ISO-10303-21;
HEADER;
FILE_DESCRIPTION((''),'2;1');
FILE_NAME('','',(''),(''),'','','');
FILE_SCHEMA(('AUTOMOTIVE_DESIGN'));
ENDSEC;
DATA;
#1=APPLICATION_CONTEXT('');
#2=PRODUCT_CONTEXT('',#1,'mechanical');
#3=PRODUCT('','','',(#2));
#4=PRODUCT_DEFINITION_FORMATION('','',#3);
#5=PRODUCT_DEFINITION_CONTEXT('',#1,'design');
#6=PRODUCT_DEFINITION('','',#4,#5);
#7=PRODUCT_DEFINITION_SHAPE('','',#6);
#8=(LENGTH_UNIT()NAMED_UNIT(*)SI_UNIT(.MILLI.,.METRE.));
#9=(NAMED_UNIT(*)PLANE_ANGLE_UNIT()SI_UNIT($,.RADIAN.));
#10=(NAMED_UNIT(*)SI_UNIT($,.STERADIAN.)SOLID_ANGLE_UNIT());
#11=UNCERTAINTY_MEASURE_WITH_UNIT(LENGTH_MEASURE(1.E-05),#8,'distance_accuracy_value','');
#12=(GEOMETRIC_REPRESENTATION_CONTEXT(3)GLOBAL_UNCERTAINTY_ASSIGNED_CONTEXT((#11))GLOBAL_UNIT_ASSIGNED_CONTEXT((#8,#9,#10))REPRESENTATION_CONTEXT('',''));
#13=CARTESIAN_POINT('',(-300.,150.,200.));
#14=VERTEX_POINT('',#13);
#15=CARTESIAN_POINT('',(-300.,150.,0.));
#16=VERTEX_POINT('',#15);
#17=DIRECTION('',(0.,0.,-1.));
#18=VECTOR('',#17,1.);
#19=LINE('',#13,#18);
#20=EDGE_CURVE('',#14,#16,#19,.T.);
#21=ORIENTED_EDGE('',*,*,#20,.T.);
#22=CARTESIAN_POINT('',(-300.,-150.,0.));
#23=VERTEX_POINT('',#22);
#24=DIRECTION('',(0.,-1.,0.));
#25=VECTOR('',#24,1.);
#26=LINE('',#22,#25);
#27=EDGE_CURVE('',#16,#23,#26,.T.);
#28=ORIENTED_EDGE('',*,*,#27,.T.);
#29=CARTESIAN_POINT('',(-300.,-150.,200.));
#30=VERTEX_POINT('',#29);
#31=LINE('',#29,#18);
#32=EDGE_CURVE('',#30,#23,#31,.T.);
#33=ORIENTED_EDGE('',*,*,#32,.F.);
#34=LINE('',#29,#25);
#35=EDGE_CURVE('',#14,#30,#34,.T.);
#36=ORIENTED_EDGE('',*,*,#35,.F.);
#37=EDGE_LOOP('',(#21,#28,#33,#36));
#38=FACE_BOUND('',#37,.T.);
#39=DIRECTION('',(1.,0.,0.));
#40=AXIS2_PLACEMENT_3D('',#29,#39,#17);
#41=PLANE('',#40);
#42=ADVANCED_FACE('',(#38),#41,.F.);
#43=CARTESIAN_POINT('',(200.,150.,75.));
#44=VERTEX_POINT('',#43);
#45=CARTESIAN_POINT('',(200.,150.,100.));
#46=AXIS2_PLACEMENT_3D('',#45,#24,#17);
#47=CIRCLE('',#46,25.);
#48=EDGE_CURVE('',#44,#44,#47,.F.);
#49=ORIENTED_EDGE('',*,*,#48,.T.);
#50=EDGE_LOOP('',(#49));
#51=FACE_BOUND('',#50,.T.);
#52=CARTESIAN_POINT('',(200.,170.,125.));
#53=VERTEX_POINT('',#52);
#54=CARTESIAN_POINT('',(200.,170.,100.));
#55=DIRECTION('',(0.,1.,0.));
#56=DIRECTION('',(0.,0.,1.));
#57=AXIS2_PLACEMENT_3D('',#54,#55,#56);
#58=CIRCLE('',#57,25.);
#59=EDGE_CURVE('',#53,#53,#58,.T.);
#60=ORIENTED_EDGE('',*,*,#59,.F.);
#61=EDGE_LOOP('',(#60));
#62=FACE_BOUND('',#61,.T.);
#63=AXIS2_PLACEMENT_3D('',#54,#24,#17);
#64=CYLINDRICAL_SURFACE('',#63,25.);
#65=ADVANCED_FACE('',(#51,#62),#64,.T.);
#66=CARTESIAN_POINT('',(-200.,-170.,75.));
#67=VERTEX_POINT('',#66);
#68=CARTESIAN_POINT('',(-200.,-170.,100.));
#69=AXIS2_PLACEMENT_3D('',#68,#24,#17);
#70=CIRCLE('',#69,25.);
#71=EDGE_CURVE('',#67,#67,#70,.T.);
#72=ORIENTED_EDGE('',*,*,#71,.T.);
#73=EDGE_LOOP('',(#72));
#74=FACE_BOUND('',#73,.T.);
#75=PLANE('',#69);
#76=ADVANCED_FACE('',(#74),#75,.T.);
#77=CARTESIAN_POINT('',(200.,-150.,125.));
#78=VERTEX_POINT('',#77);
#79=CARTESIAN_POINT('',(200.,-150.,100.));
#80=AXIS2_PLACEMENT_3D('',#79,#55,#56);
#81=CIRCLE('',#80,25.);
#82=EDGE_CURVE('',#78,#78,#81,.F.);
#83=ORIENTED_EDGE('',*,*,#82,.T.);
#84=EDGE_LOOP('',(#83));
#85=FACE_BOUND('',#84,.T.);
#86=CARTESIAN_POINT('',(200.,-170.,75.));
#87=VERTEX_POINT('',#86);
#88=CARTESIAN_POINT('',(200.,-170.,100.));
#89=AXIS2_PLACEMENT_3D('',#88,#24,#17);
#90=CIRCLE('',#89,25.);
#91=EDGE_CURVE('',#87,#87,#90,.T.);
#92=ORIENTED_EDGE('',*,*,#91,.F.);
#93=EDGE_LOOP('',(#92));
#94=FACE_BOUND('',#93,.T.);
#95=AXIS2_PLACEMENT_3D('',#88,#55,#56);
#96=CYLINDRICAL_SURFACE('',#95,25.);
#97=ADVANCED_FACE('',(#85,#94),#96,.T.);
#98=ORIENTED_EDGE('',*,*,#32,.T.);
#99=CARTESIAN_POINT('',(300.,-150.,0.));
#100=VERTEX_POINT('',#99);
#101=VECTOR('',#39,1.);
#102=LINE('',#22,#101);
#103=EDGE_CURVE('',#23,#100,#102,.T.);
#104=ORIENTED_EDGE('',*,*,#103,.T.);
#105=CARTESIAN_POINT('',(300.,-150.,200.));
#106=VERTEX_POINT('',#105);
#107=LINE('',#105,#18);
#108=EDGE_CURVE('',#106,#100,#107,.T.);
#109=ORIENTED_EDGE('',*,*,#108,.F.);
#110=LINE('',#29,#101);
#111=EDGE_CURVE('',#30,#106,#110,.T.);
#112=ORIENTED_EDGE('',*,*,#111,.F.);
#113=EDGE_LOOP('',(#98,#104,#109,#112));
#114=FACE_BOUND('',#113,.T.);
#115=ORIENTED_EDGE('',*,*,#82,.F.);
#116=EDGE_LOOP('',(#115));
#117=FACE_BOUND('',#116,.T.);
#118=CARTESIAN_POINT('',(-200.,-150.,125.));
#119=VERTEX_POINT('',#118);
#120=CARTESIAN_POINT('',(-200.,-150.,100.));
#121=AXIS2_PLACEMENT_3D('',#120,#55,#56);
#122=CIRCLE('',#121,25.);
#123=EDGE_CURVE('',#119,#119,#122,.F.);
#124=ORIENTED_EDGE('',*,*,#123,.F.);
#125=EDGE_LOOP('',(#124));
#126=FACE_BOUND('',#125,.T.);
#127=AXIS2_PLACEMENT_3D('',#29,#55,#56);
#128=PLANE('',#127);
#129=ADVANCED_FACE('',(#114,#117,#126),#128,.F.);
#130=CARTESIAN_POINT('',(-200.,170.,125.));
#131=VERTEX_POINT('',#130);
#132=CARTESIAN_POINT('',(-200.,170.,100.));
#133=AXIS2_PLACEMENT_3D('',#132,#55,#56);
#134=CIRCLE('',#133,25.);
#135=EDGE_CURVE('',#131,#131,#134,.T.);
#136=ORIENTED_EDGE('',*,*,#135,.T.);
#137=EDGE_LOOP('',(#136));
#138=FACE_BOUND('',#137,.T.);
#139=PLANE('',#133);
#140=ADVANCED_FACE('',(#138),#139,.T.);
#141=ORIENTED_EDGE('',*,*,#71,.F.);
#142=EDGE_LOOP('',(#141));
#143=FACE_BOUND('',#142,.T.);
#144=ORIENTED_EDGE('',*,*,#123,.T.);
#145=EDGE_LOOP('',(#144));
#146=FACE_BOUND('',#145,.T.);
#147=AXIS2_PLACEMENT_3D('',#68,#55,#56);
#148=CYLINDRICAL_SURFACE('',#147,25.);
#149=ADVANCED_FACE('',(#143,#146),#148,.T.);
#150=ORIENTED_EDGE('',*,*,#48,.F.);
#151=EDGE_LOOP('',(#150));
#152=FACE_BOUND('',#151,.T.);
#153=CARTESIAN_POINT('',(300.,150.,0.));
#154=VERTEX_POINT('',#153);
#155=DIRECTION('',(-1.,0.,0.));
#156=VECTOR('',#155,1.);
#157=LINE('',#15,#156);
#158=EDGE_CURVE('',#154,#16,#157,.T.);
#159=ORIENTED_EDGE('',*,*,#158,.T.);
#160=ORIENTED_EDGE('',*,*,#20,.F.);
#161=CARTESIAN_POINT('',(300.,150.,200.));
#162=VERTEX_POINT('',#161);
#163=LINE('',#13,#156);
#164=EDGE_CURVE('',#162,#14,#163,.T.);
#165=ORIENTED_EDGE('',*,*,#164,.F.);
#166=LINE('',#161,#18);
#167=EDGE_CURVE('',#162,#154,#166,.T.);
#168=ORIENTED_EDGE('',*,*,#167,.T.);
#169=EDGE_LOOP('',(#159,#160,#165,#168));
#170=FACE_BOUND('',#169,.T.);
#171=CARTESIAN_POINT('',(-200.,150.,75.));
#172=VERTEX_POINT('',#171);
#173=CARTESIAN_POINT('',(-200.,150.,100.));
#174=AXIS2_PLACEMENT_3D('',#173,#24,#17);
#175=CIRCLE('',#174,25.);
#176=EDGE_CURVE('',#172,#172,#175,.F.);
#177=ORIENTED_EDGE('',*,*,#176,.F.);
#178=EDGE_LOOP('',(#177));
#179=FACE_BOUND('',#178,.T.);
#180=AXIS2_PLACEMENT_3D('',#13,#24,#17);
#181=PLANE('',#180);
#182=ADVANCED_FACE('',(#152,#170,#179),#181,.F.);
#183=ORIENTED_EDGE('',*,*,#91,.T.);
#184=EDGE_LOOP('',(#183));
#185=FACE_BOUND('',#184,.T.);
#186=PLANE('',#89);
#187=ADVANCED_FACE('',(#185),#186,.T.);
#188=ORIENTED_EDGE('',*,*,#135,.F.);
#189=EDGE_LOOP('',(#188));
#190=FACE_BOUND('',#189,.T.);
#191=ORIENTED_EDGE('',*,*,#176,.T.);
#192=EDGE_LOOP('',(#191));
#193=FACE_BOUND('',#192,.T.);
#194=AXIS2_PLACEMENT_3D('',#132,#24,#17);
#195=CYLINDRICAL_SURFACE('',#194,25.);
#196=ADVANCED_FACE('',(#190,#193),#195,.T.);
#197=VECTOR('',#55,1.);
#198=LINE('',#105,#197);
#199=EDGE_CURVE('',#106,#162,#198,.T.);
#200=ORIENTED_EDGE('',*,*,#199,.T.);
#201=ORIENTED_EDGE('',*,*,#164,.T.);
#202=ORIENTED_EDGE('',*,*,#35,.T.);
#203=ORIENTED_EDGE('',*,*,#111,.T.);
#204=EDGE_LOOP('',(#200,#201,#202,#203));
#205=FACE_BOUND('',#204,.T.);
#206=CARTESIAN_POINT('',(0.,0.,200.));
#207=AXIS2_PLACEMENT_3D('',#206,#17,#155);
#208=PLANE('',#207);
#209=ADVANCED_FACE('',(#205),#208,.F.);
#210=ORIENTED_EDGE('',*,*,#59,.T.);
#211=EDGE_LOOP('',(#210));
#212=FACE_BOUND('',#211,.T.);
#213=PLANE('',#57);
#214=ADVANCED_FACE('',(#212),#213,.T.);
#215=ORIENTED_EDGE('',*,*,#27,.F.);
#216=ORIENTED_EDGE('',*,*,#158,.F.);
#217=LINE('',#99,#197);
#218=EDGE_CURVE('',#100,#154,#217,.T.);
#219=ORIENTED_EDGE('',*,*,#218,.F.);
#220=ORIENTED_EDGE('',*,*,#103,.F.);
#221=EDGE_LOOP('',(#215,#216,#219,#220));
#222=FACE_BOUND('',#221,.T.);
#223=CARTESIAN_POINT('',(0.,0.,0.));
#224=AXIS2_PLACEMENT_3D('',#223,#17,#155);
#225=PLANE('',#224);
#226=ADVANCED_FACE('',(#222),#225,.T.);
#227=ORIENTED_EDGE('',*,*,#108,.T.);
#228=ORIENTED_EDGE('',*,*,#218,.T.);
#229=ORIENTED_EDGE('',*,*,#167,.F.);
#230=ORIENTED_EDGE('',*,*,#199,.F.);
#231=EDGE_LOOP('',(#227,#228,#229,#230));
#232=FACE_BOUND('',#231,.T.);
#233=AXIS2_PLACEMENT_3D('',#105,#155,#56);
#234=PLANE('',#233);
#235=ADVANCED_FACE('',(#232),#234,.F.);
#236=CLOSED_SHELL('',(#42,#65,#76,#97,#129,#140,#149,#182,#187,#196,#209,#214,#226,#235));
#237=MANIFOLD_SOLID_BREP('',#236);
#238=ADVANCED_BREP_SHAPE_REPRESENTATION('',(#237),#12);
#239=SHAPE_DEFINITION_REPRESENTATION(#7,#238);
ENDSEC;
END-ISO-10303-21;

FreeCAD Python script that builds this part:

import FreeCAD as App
import Part
import Sketcher
from FreeCAD import Vector
Q = App.Units.Quantity

doc = App.newDocument("Part")
params = doc.addObject("Spreadsheet::Sheet", "Params")
for row, (alias, value) in enumerate([
    ("sketch1_width", "600 mm"),
    ("sketch1_height", "300 mm"),
    ("pad1_length", "200 mm"),
    ("sketch2_diameter", "50 mm"),
    ("pad2_length", "20 mm"),
    ("sketch3_diameter", "50 mm"),
    ("pad3_length", "20 mm"),
], start=1):
    params.set(f"A{row}", alias)
    params.set(f"B{row}", "=" + value)
    params.setAlias(f"B{row}", alias)

body = doc.addObject("PartDesign::Body", "Body")

# Sketch on XY plane
sketch1 = body.newObject("Sketcher::SketchObject", "Sketch")
sketch1.AttachmentSupport = (doc.getObject("XY_Plane"), [""])
sketch1.MapMode = "FlatFace"
sketch1.addGeometry(Part.LineSegment(Vector(-300, 150, 0), Vector(-300, -150, 0)), False)
sketch1.addGeometry(Part.LineSegment(Vector(-300, -150, 0), Vector(300, -150, 0)), False)
sketch1.addGeometry(Part.LineSegment(Vector(300, -150, 0), Vector(300, 150, 0)), False)
sketch1.addGeometry(Part.LineSegment(Vector(300, 150, 0), Vector(-300, 150, 0)), False)
sketch1.addConstraint(Sketcher.Constraint("Coincident", 0, 2, 1, 1))
sketch1.addConstraint(Sketcher.Constraint("Coincident", 1, 2, 2, 1))
sketch1.addConstraint(Sketcher.Constraint("Coincident", 2, 2, 3, 1))
sketch1.addConstraint(Sketcher.Constraint("Coincident", 3, 2, 0, 1))
sketch1.addConstraint(Sketcher.Constraint("Vertical", 0))
sketch1.addConstraint(Sketcher.Constraint("Horizontal", 1))
sketch1.addConstraint(Sketcher.Constraint("Vertical", 2))
sketch1.addConstraint(Sketcher.Constraint("Horizontal", 3))
sketch1.addConstraint(Sketcher.Constraint("Symmetric", 0, 2, 2, 2, -1, 1))
sketch1.addConstraint(Sketcher.Constraint("DistanceX", 1, 1, 1, 2, Q("600 mm")))
sketch1.addConstraint(Sketcher.Constraint("DistanceY", 0, 2, 0, 1, Q("300 mm")))
sketch1.setExpression("Constraints[9]", "Params.sketch1_width")
sketch1.setExpression("Constraints[10]", "Params.sketch1_height")
pad1 = body.newObject("PartDesign::Pad", "Pad")
pad1.Profile = sketch1
pad1.setExpression("Length", "Params.pad1_length")

# Sketch on XZ plane
sketch2 = body.newObject("Sketcher::SketchObject", "Sketch001")
sketch2.AttachmentSupport = (doc.getObject("XZ_Plane"), [""])
sketch2.MapMode = "FlatFace"
sketch2.AttachmentOffset = App.Placement(Vector(0, 0, 150), App.Rotation())
sketch2.addGeometry(Part.Circle(Vector(-200, 100, 0), Vector(0, 0, 1), 25), False)
sketch2.addGeometry(Part.Circle(Vector(200, 100, 0), Vector(0, 0, 1), 25), False)
sketch2.addConstraint(Sketcher.Constraint("Equal", 0, 1))
sketch2.addConstraint(Sketcher.Constraint("Symmetric", 0, 3, 1, 3, -2))
sketch2.addConstraint(Sketcher.Constraint("Diameter", 0, Q("50 mm")))
sketch2.addConstraint(Sketcher.Constraint("DistanceX", 0, 3, -1, 1, Q("200 mm")))
sketch2.addConstraint(Sketcher.Constraint("DistanceY", -1, 1, 0, 3, Q("100 mm")))
sketch2.setExpression("Constraints[2]", "Params.sketch2_diameter")
pad2 = body.newObject("PartDesign::Pad", "Pad001")
pad2.Profile = sketch2
pad2.setExpression("Length", "Params.pad2_length")

# Sketch on XZ plane
sketch3 = body.newObject("Sketcher::SketchObject", "Sketch002")
sketch3.AttachmentSupport = (doc.getObject("XZ_Plane"), [""])
sketch3.MapMode = "FlatFace"
sketch3.AttachmentOffset = App.Placement(Vector(0, 0, -170), App.Rotation())
sketch3.addGeometry(Part.Circle(Vector(200, 100, 0), Vector(0, 0, 1), 25), False)
sketch3.addGeometry(Part.Circle(Vector(-200, 100, 0), Vector(0, 0, 1), 25), False)
sketch3.addConstraint(Sketcher.Constraint("Equal", 0, 1))
sketch3.addConstraint(Sketcher.Constraint("Symmetric", 0, 3, 1, 3, -2))
sketch3.addConstraint(Sketcher.Constraint("Diameter", 0, Q("50 mm")))
sketch3.addConstraint(Sketcher.Constraint("DistanceX", -1, 1, 0, 3, Q("200 mm")))
sketch3.addConstraint(Sketcher.Constraint("DistanceY", -1, 1, 0, 3, Q("100 mm")))
sketch3.setExpression("Constraints[2]", "Params.sketch3_diameter")
pad3 = body.newObject("PartDesign::Pad", "Pad002")
pad3.Profile = sketch3
pad3.setExpression("Length", "Params.pad3_length")

doc.recompute()
